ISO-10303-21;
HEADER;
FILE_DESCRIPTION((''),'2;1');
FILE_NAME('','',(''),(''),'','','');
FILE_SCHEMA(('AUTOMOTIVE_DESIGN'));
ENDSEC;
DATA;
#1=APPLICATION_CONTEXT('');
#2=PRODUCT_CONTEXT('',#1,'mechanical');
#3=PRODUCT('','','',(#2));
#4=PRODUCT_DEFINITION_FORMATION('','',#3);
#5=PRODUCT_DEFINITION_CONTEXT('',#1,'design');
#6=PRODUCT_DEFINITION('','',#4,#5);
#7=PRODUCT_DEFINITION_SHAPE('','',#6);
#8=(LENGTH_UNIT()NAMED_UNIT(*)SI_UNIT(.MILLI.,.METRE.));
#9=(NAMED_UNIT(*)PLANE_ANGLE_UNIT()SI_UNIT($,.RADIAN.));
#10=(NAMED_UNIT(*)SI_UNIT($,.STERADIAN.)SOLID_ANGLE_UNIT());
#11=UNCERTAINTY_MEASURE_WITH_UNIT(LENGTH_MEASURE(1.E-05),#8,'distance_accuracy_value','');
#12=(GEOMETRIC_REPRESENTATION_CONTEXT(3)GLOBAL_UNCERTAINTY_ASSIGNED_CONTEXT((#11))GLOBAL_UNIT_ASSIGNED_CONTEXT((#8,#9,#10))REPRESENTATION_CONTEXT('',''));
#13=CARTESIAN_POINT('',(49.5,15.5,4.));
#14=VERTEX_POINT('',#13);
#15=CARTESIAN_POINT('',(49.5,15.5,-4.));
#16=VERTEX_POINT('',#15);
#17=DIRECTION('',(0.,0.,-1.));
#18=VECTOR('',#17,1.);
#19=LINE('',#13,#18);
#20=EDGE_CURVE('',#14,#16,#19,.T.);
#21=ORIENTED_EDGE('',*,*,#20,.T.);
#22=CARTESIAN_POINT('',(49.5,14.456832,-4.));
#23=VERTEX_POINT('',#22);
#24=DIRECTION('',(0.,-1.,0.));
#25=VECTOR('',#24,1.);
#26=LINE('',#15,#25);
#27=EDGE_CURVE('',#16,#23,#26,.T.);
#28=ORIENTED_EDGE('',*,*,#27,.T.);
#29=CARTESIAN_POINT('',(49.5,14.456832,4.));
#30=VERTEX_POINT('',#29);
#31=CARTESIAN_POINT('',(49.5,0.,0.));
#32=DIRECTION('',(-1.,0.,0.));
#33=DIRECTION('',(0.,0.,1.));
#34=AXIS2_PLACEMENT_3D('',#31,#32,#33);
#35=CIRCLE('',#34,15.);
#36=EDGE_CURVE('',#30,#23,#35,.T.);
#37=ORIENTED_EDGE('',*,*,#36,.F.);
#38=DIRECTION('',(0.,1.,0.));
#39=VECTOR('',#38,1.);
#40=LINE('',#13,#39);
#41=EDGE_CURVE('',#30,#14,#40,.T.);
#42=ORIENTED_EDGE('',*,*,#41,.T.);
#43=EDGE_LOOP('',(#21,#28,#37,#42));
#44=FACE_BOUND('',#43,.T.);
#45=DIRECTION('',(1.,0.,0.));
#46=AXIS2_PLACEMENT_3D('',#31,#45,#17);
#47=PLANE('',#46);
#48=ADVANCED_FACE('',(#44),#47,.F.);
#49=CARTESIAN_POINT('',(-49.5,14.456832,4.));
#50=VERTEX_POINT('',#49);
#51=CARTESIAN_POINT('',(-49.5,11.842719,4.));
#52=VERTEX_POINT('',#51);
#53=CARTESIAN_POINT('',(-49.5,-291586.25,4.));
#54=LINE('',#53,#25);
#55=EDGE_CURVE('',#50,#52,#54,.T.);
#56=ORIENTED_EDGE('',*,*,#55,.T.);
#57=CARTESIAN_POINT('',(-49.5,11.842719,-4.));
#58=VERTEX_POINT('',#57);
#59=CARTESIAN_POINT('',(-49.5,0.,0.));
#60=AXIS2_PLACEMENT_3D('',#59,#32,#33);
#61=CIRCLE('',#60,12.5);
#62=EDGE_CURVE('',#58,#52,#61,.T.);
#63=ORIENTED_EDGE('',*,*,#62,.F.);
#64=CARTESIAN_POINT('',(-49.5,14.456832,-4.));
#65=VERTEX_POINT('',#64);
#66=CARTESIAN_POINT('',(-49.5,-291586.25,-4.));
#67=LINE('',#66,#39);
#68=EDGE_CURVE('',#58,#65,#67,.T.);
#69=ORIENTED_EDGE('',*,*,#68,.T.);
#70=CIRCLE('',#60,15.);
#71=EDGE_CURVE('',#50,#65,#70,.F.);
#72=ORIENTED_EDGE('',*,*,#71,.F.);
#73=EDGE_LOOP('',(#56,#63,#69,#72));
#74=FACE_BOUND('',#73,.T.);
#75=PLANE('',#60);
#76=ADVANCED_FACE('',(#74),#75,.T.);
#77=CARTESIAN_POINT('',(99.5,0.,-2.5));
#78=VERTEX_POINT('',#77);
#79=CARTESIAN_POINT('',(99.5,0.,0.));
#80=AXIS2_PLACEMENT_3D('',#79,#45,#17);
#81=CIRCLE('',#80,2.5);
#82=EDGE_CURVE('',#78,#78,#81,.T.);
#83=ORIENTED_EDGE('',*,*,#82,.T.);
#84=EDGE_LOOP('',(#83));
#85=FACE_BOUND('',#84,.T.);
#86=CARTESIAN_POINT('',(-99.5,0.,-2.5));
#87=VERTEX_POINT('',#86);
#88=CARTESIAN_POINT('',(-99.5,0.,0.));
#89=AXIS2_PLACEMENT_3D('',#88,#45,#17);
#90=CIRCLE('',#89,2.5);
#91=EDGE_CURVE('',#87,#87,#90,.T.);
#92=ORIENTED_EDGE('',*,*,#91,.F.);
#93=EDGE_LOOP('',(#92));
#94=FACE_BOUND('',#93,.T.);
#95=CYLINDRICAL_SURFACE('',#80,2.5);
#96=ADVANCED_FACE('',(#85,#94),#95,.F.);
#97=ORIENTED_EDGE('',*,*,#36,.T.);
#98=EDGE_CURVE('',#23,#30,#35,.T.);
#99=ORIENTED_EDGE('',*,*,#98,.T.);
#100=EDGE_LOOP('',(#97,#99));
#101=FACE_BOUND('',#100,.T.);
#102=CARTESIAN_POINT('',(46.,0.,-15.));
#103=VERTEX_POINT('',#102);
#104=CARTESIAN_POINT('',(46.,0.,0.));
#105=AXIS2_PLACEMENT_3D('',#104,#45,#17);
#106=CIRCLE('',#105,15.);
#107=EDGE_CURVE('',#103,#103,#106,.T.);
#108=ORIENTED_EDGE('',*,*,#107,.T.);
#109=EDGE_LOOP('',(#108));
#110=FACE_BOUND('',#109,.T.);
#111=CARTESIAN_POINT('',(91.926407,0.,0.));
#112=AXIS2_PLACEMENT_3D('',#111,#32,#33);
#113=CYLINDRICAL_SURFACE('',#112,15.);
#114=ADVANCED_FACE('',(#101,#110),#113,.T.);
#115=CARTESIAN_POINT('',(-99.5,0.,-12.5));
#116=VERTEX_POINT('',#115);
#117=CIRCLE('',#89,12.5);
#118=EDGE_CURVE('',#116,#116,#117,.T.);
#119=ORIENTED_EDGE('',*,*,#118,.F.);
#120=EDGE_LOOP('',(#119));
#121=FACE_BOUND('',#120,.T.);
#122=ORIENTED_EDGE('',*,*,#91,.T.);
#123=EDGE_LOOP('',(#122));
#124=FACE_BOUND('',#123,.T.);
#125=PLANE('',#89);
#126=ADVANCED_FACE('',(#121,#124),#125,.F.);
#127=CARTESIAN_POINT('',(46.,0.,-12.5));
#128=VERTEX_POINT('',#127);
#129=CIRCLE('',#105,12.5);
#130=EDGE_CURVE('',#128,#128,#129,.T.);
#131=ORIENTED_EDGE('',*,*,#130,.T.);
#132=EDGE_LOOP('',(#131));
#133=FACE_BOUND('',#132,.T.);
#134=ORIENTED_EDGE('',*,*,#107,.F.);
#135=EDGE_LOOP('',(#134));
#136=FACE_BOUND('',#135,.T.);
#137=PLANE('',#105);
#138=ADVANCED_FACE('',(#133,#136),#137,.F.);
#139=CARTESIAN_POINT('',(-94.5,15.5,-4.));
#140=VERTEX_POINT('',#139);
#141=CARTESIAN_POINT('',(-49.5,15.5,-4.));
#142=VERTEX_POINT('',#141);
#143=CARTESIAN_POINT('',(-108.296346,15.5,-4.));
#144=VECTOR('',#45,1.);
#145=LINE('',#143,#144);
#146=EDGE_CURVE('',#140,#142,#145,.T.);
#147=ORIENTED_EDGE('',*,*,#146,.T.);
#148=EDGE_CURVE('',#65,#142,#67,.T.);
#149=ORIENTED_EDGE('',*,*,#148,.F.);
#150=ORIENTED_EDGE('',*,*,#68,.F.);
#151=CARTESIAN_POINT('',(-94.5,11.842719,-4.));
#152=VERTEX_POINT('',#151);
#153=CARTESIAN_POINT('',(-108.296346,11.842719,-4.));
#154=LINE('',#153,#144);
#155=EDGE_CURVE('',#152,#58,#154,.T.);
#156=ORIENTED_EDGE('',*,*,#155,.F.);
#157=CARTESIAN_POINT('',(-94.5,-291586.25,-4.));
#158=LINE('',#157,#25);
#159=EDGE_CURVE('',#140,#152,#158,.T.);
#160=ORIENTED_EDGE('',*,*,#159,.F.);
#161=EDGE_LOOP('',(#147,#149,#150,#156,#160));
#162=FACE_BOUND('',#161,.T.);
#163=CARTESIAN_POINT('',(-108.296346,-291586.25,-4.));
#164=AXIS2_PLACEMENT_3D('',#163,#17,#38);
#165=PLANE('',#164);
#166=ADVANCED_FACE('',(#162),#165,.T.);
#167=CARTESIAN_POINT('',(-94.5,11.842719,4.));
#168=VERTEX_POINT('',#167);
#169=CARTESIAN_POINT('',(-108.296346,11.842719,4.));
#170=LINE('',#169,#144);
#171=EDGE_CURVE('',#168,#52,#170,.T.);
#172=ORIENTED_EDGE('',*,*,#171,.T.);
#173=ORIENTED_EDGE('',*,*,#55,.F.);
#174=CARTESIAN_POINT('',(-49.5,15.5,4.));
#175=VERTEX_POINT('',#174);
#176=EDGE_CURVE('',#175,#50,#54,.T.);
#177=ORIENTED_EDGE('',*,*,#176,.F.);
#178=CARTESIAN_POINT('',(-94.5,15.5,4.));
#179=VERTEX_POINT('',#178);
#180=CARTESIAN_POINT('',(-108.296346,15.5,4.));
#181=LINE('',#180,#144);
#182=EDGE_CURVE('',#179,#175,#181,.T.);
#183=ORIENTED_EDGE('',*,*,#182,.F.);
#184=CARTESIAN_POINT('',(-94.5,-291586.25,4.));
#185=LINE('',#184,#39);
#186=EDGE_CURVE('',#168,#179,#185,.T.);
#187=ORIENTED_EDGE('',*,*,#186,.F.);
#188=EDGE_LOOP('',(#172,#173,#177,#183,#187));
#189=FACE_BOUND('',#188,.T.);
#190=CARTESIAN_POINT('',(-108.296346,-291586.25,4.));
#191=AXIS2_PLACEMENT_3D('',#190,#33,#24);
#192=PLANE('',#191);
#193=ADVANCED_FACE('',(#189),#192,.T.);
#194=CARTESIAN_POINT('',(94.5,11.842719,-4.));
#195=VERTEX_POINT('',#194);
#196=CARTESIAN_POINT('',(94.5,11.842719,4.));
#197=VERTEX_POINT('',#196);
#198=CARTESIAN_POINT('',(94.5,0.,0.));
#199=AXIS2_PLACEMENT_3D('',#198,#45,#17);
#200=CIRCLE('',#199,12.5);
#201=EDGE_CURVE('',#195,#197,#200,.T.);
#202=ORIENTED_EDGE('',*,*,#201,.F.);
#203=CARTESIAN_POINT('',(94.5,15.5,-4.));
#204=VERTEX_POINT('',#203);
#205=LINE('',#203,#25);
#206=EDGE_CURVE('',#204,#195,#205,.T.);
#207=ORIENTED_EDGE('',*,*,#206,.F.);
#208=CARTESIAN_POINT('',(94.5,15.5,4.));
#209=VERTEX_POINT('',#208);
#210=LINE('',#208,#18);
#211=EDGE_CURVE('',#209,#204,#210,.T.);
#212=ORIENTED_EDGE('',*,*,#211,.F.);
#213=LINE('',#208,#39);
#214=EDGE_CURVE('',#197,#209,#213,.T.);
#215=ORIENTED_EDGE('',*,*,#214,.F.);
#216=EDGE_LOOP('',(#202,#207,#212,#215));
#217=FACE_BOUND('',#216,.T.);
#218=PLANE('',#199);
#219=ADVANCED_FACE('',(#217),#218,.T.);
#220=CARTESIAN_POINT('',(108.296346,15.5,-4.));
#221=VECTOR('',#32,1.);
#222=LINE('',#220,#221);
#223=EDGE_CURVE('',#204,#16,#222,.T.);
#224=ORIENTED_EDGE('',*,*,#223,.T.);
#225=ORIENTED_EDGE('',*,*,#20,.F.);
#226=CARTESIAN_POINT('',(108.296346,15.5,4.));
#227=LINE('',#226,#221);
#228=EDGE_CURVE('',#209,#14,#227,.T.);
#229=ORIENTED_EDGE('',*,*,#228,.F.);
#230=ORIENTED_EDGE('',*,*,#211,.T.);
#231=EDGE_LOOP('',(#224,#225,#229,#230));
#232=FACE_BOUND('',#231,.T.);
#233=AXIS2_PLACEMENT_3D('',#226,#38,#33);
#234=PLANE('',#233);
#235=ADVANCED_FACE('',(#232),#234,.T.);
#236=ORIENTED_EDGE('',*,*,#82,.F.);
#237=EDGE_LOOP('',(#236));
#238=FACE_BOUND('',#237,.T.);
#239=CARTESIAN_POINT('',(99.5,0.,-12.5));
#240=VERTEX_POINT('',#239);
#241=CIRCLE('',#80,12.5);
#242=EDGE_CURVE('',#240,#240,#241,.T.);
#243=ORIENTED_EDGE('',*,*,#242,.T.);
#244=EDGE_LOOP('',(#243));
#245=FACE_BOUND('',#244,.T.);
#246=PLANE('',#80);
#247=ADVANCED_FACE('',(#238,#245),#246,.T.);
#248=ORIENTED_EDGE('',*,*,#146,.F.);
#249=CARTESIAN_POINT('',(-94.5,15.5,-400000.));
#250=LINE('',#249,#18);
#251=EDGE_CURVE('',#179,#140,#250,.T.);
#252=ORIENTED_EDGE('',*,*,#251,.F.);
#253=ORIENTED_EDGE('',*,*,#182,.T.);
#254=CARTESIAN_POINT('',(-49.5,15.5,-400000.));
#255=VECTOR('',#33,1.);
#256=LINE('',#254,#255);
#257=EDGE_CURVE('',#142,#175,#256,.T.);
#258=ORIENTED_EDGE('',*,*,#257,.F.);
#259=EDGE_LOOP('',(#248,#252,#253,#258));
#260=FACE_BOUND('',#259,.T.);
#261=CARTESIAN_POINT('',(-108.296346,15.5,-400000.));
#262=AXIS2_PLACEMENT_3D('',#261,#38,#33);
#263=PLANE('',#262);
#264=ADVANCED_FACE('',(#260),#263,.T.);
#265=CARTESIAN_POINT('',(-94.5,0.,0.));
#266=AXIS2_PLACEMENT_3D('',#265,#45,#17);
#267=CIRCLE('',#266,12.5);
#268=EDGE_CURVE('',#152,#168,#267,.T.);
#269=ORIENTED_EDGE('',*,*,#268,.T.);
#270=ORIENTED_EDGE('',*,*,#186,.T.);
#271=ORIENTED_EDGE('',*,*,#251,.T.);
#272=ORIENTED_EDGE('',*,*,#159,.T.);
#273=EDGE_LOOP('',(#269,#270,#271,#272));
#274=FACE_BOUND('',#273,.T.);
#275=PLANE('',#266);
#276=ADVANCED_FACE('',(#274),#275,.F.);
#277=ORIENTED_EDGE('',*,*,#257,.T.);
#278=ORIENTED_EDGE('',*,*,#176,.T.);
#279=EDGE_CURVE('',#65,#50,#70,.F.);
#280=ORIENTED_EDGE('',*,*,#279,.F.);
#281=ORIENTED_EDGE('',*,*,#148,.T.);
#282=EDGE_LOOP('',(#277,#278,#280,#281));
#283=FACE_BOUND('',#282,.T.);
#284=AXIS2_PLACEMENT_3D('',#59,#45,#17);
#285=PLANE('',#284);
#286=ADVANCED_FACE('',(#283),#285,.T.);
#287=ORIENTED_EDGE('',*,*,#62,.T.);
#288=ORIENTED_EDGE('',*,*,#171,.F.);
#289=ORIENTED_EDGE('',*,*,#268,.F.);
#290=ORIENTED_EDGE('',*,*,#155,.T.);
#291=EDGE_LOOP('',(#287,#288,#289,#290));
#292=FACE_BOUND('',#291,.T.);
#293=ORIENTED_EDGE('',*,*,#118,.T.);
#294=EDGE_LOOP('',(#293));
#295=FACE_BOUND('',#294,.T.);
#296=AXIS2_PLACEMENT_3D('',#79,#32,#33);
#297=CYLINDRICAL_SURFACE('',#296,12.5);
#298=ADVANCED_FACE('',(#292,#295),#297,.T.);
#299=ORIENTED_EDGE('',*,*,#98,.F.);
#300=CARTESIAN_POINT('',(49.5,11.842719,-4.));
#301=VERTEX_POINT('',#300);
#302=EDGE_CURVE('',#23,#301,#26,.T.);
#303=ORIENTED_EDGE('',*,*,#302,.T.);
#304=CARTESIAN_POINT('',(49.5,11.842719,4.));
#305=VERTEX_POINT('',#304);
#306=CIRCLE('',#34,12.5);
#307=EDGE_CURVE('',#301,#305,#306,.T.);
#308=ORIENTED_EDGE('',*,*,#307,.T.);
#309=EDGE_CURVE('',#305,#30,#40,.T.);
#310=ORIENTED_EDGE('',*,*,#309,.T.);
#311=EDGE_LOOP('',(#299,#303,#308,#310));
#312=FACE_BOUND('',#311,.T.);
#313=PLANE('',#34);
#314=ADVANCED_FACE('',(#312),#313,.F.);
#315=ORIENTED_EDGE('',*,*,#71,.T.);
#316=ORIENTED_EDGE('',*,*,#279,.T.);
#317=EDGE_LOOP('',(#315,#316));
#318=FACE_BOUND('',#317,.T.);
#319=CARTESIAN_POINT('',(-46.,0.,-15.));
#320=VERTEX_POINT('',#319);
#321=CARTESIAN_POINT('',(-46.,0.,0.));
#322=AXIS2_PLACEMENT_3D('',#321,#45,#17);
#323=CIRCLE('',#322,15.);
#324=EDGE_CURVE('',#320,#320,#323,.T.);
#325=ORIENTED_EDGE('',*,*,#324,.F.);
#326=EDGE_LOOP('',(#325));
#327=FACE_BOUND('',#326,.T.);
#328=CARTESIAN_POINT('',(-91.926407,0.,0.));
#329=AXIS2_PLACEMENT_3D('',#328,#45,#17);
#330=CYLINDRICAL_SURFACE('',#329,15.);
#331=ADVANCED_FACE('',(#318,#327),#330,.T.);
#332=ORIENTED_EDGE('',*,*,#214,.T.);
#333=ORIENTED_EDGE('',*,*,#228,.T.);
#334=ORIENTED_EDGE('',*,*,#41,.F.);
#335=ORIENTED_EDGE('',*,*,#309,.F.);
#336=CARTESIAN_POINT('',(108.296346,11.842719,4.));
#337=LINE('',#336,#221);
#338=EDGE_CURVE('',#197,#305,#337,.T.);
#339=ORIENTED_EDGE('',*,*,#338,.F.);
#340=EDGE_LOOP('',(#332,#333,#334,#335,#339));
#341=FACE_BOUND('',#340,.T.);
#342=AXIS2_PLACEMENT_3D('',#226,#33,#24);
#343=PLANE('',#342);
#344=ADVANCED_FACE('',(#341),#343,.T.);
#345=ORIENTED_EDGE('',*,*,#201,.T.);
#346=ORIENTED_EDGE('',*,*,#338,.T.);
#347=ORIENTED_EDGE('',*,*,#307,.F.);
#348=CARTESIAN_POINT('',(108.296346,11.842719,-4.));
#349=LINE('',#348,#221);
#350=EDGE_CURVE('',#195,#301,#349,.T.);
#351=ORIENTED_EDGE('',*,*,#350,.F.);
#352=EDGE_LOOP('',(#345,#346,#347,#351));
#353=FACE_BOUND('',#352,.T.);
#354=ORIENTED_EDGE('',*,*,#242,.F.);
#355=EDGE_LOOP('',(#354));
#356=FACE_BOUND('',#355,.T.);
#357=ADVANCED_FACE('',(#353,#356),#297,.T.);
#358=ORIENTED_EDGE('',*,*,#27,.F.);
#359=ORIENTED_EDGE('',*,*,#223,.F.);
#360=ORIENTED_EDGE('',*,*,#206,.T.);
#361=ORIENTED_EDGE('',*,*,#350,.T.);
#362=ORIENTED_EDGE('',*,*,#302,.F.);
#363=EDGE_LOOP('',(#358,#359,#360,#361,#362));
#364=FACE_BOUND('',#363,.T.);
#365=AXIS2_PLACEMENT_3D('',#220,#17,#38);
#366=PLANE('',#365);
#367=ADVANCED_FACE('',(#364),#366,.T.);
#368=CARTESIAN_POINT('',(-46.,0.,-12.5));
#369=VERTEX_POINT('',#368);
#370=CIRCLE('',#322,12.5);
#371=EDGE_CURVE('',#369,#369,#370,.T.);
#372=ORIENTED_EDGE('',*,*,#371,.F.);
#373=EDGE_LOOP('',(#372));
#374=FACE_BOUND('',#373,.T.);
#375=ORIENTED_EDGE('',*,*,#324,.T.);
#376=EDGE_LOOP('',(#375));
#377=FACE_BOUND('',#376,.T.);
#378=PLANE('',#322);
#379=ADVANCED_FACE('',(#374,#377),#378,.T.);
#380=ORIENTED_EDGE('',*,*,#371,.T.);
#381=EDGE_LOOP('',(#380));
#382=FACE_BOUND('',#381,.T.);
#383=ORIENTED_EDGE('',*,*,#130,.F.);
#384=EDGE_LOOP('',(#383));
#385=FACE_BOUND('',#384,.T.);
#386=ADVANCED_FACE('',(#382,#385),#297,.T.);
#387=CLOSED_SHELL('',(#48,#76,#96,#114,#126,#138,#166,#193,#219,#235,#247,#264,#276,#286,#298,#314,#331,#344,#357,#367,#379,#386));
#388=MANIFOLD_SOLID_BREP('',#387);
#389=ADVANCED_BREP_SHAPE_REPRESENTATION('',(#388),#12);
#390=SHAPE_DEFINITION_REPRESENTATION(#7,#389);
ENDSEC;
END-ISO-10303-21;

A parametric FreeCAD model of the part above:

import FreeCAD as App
import Part
import Sketcher


def add_polygon(sketch, points):
    """Adds a closed chain of lines whose ends are joined by coincident constraints."""
    first, n = sketch.GeometryCount, len(points)
    for a, b in zip(points, points[1:] + points[:1]):
        sketch.addGeometry(Part.LineSegment(App.Vector(*a, 0), App.Vector(*b, 0)), False)
    for i in range(n):
        sketch.addConstraint(Sketcher.Constraint("Coincident", first + i, 2, first + (i + 1) % n, 1))

doc = App.newDocument("Part")
body = doc.addObject("PartDesign::Body", "Body")

# Sketch on YZ plane
sketch1 = doc.addObject("Sketcher::SketchObject", "Sketch")
body.addObject(sketch1)
sketch1.AttachmentSupport = (doc.YZ_Plane, [""])
sketch1.MapMode = "FlatFace"
sketch1.addGeometry(Part.Circle(App.Vector(0, 0, 0), App.Vector(0, 0, 1), 12), False)
sketch1.addConstraint(Sketcher.Constraint("Coincident", 0, 3, -1, 1))
sketch1.addConstraint(Sketcher.Constraint("Diameter", 0, 25.0))
pad1 = doc.addObject("PartDesign::Pad", "Pad")
body.addObject(pad1)
pad1.Profile = sketch1
pad1.Length = 199
pad1.Midplane = True

# Sketch on YZ plane
sketch2 = doc.addObject("Sketcher::SketchObject", "Sketch001")
body.addObject(sketch2)
sketch2.AttachmentSupport = (doc.YZ_Plane, [""])
sketch2.MapMode = "FlatFace"
sketch2.AttachmentOffset = App.Placement(App.Vector(0, 0, 46), App.Rotation())
sketch2.addGeometry(Part.Circle(App.Vector(0, 0, 0), App.Vector(0, 0, 1), 15), False)
sketch2.addConstraint(Sketcher.Constraint("Coincident", 0, 3, -1, 1))
sketch2.addConstraint(Sketcher.Constraint("Diameter", 0, 30.0))
pad2 = doc.addObject("PartDesign::Pad", "Pad001")
body.addObject(pad2)
pad2.Profile = sketch2
pad2.Length = 3.5

# Sketch on YZ plane
sketch3 = doc.addObject("Sketcher::SketchObject", "Sketch002")
body.addObject(sketch3)
sketch3.AttachmentSupport = (doc.YZ_Plane, [""])
sketch3.MapMode = "FlatFace"
sketch3.AttachmentOffset = App.Placement(App.Vector(0, 0, 49.5), App.Rotation())
add_polygon(sketch3, [(15.5, -4), (11.8, -4), (11.8, 4), (15.5, 4)])  # lines 0-3
sketch3.addConstraint(Sketcher.Constraint("Horizontal", 0))
sketch3.addConstraint(Sketcher.Constraint("Vertical", 1))
sketch3.addConstraint(Sketcher.Constraint("Horizontal", 2))
sketch3.addConstraint(Sketcher.Constraint("Vertical", 3))
sketch3.addConstraint(Sketcher.Constraint("DistanceY", 1, 1, 1, 2, 8.0))
sketch3.addConstraint(Sketcher.Constraint("DistanceY", 0, 2, -1, 1, 4.0))
sketch3.addConstraint(Sketcher.Constraint("DistanceX", -1, 1, 2, 2, 15.5))
sketch3.addConstraint(Sketcher.Constraint("DistanceX", 0, 2, 0, 1, 3.657281))
pad3 = doc.addObject("PartDesign::Pad", "Pad002")
body.addObject(pad3)
pad3.Profile = sketch3
pad3.Length = 45

# Sketch on YZ plane
sketch4 = doc.addObject("Sketcher::SketchObject", "Sketch003")
body.addObject(sketch4)
sketch4.AttachmentSupport = (doc.YZ_Plane, [""])
sketch4.MapMode = "FlatFace"
sketch4.AttachmentOffset = App.Placement(App.Vector(0, 0, -49.5), App.Rotation())
add_polygon(sketch4, [(15.5, -4), (11.8, -4), (11.8, 4), (15.5, 4)])  # lines 0-3
sketch4.addConstraint(Sketcher.Constraint("Horizontal", 0))
sketch4.addConstraint(Sketcher.Constraint("Vertical", 1))
sketch4.addConstraint(Sketcher.Constraint("Horizontal", 2))
sketch4.addConstraint(Sketcher.Constraint("Vertical", 3))
sketch4.addConstraint(Sketcher.Constraint("DistanceY", 1, 1, 1, 2, 8.0))
sketch4.addConstraint(Sketcher.Constraint("DistanceY", 0, 2, -1, 1, 4.0))
sketch4.addConstraint(Sketcher.Constraint("DistanceX", -1, 1, 2, 2, 15.5))
sketch4.addConstraint(Sketcher.Constraint("DistanceX", 0, 2, 0, 1, 3.657281))
pad4 = doc.addObject("PartDesign::Pad", "Pad003")
body.addObject(pad4)
pad4.Profile = sketch4
pad4.Length = 45
pad4.Reversed = True

# Sketch on YZ plane
sketch5 = doc.addObject("Sketcher::SketchObject", "Sketch004")
body.addObject(sketch5)
sketch5.AttachmentSupport = (doc.YZ_Plane, [""])
sketch5.MapMode = "FlatFace"
sketch5.AttachmentOffset = App.Placement(App.Vector(0, 0, -46), App.Rotation())
sketch5.addGeometry(Part.Circle(App.Vector(0, 0, 0), App.Vector(0, 0, 1), 15), False)
sketch5.addConstraint(Sketcher.Constraint("Coincident", 0, 3, -1, 1))
sketch5.addConstraint(Sketcher.Constraint("Diameter", 0, 30.0))
pad5 = doc.addObject("PartDesign::Pad", "Pad004")
body.addObject(pad5)
pad5.Profile = sketch5
pad5.Length = 3.5
pad5.Reversed = True

# Sketch on YZ plane
sketch6 = doc.addObject("Sketcher::SketchObject", "Sketch005")
body.addObject(sketch6)
sketch6.AttachmentSupport = (doc.YZ_Plane, [""])
sketch6.MapMode = "FlatFace"
sketch6.AttachmentOffset = App.Placement(App.Vector(0, 0, 99.5), App.Rotation())
sketch6.addGeometry(Part.Circle(App.Vector(0, 0, 0), App.Vector(0, 0, 1), 2.5), False)
sketch6.addConstraint(Sketcher.Constraint("Coincident", 0, 3, -1, 1))
sketch6.addConstraint(Sketcher.Constraint("Diameter", 0, 5.0))
doc.recompute()
hole = doc.addObject("PartDesign::Hole", "Hole")
body.addObject(hole)
hole.Profile = sketch6
hole.ThreadType = "None"
hole.Diameter = 5
hole.DepthType = "ThroughAll"

doc.recompute()
